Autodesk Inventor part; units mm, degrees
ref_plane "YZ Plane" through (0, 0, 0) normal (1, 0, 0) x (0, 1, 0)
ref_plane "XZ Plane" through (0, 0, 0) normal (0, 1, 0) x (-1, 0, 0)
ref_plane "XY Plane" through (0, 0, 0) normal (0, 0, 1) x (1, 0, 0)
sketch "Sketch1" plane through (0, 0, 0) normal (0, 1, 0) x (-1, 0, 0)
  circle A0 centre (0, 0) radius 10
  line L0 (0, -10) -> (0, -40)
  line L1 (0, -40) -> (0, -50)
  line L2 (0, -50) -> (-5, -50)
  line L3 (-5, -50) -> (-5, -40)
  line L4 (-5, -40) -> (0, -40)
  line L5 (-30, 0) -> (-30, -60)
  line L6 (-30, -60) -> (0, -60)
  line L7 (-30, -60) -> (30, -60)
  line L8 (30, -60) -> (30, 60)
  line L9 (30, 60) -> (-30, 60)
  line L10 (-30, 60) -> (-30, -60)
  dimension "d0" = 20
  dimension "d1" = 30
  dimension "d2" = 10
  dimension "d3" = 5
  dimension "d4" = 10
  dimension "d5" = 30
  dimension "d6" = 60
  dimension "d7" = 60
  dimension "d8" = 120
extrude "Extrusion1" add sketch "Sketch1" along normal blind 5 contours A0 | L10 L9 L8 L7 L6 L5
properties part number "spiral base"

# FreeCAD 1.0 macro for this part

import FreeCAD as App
import Part
import Sketcher

doc = App.newDocument("Part")
params = doc.addObject("Spreadsheet::Sheet", "Params")
for row, (alias, value) in enumerate([
    ("sketch1_width", "60 mm"),
    ("sketch1_width2", "5 mm"),
    ("sketch1_height", "120 mm"),
    ("sketch1_height2", "10 mm"),
    ("pad1_length", "5 mm"),
], start=1):
    params.set(f"A{row}", alias)
    params.set(f"B{row}", "=" + value)
    params.setAlias(f"B{row}", alias)

body = doc.addObject("PartDesign::Body", "Body")

# Sketch on XZ plane
sketch1 = body.newObject("Sketcher::SketchObject", "Sketch")
sketch1.AttachmentSupport = (doc.getObject("XZ_Plane"), [""])
sketch1.MapMode = "FlatFace"
sketch1.addGeometry(Part.LineSegment(App.Vector(30, 60, 0), App.Vector(30, -60, 0)), False)
sketch1.addGeometry(Part.LineSegment(App.Vector(30, -60, 0), App.Vector(-30, -60, 0)), False)
sketch1.addGeometry(Part.LineSegment(App.Vector(-30, -60, 0), App.Vector(-30, 60, 0)), False)
sketch1.addGeometry(Part.LineSegment(App.Vector(-30, 60, 0), App.Vector(30, 60, 0)), False)
sketch1.addGeometry(Part.LineSegment(App.Vector(5, -40, 0), App.Vector(0, -40, 0)), False)
sketch1.addGeometry(Part.LineSegment(App.Vector(0, -40, 0), App.Vector(0, -50, 0)), False)
sketch1.addGeometry(Part.LineSegment(App.Vector(0, -50, 0), App.Vector(5, -50, 0)), False)
sketch1.addGeometry(Part.LineSegment(App.Vector(5, -50, 0), App.Vector(5, -40, 0)), False)
sketch1.addConstraint(Sketcher.Constraint("Coincident", 0, 2, 1, 1))
sketch1.addConstraint(Sketcher.Constraint("Coincident", 1, 2, 2, 1))
sketch1.addConstraint(Sketcher.Constraint("Coincident", 2, 2, 3, 1))
sketch1.addConstraint(Sketcher.Constraint("Coincident", 3, 2, 0, 1))
sketch1.addConstraint(Sketcher.Constraint("Coincident", 4, 2, 5, 1))
sketch1.addConstraint(Sketcher.Constraint("Coincident", 5, 2, 6, 1))
sketch1.addConstraint(Sketcher.Constraint("Coincident", 6, 2, 7, 1))
sketch1.addConstraint(Sketcher.Constraint("Coincident", 7, 2, 4, 1))
sketch1.addConstraint(Sketcher.Constraint("Vertical", 0))
sketch1.addConstraint(Sketcher.Constraint("Horizontal", 1))
sketch1.addConstraint(Sketcher.Constraint("Vertical", 2))
sketch1.addConstraint(Sketcher.Constraint("Horizontal", 3))
sketch1.addConstraint(Sketcher.Constraint("Horizontal", 4))
sketch1.addConstraint(Sketcher.Constraint("Vertical", 5))
sketch1.addConstraint(Sketcher.Constraint("Horizontal", 6))
sketch1.addConstraint(Sketcher.Constraint("Vertical", 7))
sketch1.addConstraint(Sketcher.Constraint("Symmetric", 0, 2, 2, 2, -1, 1))
sketch1.addConstraint(Sketcher.Constraint("PointOnObject", 4, 2, -2))
sketch1.addConstraint(Sketcher.Constraint("DistanceX", 1, 2, 1, 1, 60.0))
sketch1.addConstraint(Sketcher.Constraint("DistanceX", 4, 2, 4, 1, 5.0))
sketch1.addConstraint(Sketcher.Constraint("DistanceY", 0, 2, 0, 1, 120.0))
sketch1.addConstraint(Sketcher.Constraint("DistanceY", 5, 2, 5, 1, 10.0))
sketch1.addConstraint(Sketcher.Constraint("DistanceY", 0, 2, 4, 2, 20.0))
sketch1.setExpression("Constraints[18]", "Params.sketch1_width")
sketch1.setExpression("Constraints[19]", "Params.sketch1_width2")
sketch1.setExpression("Constraints[20]", "Params.sketch1_height")
sketch1.setExpression("Constraints[21]", "Params.sketch1_height2")
pad1 = body.newObject("PartDesign::Pad", "Pad")
pad1.Profile = sketch1
pad1.setExpression("Length", "Params.pad1_length")
pad1.Reversed = True

doc.recompute()
